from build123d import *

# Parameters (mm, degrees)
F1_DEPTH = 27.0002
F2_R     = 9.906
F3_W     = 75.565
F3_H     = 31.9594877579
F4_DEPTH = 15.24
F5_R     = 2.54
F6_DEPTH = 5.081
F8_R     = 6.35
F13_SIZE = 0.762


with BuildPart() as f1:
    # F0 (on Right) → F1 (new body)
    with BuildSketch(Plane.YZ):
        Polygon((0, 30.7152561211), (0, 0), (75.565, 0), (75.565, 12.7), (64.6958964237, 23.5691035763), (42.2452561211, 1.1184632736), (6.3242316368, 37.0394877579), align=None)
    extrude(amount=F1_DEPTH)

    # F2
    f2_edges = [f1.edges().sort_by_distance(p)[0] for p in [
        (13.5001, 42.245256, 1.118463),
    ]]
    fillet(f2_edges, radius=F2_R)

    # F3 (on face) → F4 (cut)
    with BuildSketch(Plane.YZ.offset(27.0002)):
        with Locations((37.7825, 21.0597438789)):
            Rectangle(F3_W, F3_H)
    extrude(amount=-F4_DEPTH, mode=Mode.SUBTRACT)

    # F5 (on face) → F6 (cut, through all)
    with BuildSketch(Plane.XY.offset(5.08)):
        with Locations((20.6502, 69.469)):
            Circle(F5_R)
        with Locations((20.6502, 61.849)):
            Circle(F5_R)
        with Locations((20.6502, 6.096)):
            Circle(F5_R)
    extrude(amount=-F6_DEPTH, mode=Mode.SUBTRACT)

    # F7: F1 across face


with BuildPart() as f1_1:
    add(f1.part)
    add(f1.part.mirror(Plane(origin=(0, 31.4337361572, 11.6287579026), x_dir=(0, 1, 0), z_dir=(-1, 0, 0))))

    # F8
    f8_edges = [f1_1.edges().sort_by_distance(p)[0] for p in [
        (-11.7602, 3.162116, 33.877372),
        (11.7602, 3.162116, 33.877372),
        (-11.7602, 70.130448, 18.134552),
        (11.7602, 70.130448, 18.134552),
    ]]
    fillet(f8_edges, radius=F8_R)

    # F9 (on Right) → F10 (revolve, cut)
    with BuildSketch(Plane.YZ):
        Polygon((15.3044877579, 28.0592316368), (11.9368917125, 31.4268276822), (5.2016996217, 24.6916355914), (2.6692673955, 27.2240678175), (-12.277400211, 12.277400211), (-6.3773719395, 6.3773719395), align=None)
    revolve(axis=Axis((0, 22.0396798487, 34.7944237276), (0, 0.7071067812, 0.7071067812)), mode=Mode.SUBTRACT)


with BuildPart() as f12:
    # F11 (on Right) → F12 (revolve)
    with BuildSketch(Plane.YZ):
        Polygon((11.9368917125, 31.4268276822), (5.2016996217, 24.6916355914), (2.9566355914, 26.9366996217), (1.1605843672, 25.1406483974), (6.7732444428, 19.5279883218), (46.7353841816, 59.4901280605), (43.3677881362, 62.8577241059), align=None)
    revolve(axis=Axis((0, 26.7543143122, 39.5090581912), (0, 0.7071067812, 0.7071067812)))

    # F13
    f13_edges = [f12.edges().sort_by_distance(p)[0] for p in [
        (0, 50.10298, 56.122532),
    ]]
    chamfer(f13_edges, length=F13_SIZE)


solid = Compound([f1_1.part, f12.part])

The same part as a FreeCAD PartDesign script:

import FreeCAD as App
import Part
import Sketcher
from FreeCAD import Vector
Q = App.Units.Quantity


def edges_at(feature, points):
    """Names of the edges that pass closest to the given points."""
    edges = feature.Shape.Edges
    near = lambda p: min(range(len(edges)), key=lambda i: edges[i].distToShape(Part.Vertex(*p))[0])
    return sorted({f"Edge{near(p) + 1}" for p in points})

doc = App.newDocument("Part")
body = doc.addObject("PartDesign::Body", "Body")

sketch1 = doc.addObject("Sketcher::SketchObject", "Sketch")
body.addObject(sketch1)
sketch1.AttachmentSupport = (doc.YZ_Plane, [""])
sketch1.MapMode = "FlatFace"
sketch1.addGeometry([
    Part.LineSegment(Vector(0, 31, 0), Vector(0, 0, 0)),
    Part.LineSegment(Vector(0, 0, 0), Vector(76, 0, 0)),
    Part.LineSegment(Vector(76, 0, 0), Vector(76, 13, 0)),
    Part.LineSegment(Vector(76, 13, 0), Vector(65, 24, 0)),
    Part.LineSegment(Vector(65, 24, 0), Vector(42, 1, 0)),
    Part.LineSegment(Vector(42, 1, 0), Vector(6, 37, 0)),
    Part.LineSegment(Vector(6, 37, 0), Vector(0, 31, 0)),
], False)
sketch1.addConstraint([
    Sketcher.Constraint("Coincident", 0, 2, 1, 1),
    Sketcher.Constraint("Coincident", 1, 2, 2, 1),
    Sketcher.Constraint("Coincident", 2, 2, 3, 1),
    Sketcher.Constraint("Coincident", 3, 2, 4, 1),
    Sketcher.Constraint("Coincident", 4, 2, 5, 1),
    Sketcher.Constraint("Coincident", 5, 2, 6, 1),
    Sketcher.Constraint("Coincident", 6, 2, 0, 1),
    Sketcher.Constraint("Vertical", 0),
    Sketcher.Constraint("Horizontal", 1),
    Sketcher.Constraint("Vertical", 2),
    Sketcher.Constraint("Coincident", 0, 2, -1, 1),
    Sketcher.Constraint("Perpendicular", 3, 4),
    Sketcher.Constraint("Perpendicular", 4, 5),
    Sketcher.Constraint("Perpendicular", 5, 6),
    Sketcher.Constraint("Distance", 5, Q("2 in")),
    Sketcher.Constraint("DistanceY", 2, 1, 2, 2, Q("0.5 in")),
    Sketcher.Constraint("Angle", 3, Q("135 deg")),
    Sketcher.Constraint("Distance", 4, Q("1.25 in")),
    Sketcher.Constraint("DistanceX", 1, 1, 1, 2, Q("2.975 in")),
    Sketcher.Constraint("DistanceY", 0, 2, 0, 1, 30.715256),
])
pad1 = doc.addObject("PartDesign::Pad", "Pad")
body.addObject(pad1)
pad1.Profile = sketch1
pad1.Length = Q("1.063 in")
doc.recompute()

fillet = doc.addObject("PartDesign::Fillet", "Fillet")
body.addObject(fillet)
fillet.Base = (pad1, edges_at(pad1, [(13.5, 42.245, 1.118)]))
fillet.Radius = Q("0.39 in")

sketch2 = doc.addObject("Sketcher::SketchObject", "Sketch001")
body.addObject(sketch2)
sketch2.AttachmentSupport = (doc.YZ_Plane, [""])
sketch2.MapMode = "FlatFace"
sketch2.AttachmentOffset = App.Placement(Vector(0, 0, 1.063 * 25.4), App.Rotation())
sketch2.addGeometry([
    Part.LineSegment(Vector(0, 37, 0), Vector(0, 5, 0)),
    Part.LineSegment(Vector(0, 5, 0), Vector(76, 5, 0)),
    Part.LineSegment(Vector(76, 5, 0), Vector(76, 37, 0)),
    Part.LineSegment(Vector(76, 37, 0), Vector(0, 37, 0)),
], False)
sketch2.addConstraint([
    Sketcher.Constraint("Coincident", 0, 2, 1, 1),
    Sketcher.Constraint("Coincident", 1, 2, 2, 1),
    Sketcher.Constraint("Coincident", 2, 2, 3, 1),
    Sketcher.Constraint("Coincident", 3, 2, 0, 1),
    Sketcher.Constraint("Vertical", 0),
    Sketcher.Constraint("Horizontal", 1),
    Sketcher.Constraint("Vertical", 2),
    Sketcher.Constraint("Horizontal", 3),
    Sketcher.Constraint("PointOnObject", 0, 2, -2),
    Sketcher.Constraint("DistanceY", -1, 1, 0, 2, Q("0.2 in")),
    Sketcher.Constraint("DistanceX", 1, 1, 1, 2, Q("2.975 in")),
    Sketcher.Constraint("DistanceY", 0, 2, 0, 1, 31.959488),
])
pocket1 = doc.addObject("PartDesign::Pocket", "Pocket")
body.addObject(pocket1)
pocket1.Profile = sketch2
pocket1.Length = Q("0.6 in")

sketch3 = doc.addObject("Sketcher::SketchObject", "Sketch002")
body.addObject(sketch3)
sketch3.AttachmentSupport = (doc.XY_Plane, [""])
sketch3.MapMode = "FlatFace"
sketch3.AttachmentOffset = App.Placement(Vector(0, 0, 0.2 * 25.4), App.Rotation())
sketch3.addGeometry([
    Part.Circle(Vector(20.7, 69.5, 0), Vector(0, 0, 1), 2.5),
    Part.Circle(Vector(20.7, 61.8, 0), Vector(0, 0, 1), 2.5),
    Part.Circle(Vector(20.7, 6.1, 0), Vector(0, 0, 1), 2.5),
], False)
sketch3.addConstraint([
    Sketcher.Constraint("Equal", 0, 1),
    Sketcher.Constraint("Equal", 1, 2),
    Sketcher.Constraint("Vertical", 0, 3, 1, 3),
    Sketcher.Constraint("Vertical", 1, 3, 2, 3),
    Sketcher.Constraint("Diameter", 0, Q("0.2 in")),
    Sketcher.Constraint("DistanceY", 1, 3, 0, 3, Q("0.3 in")),
    Sketcher.Constraint("DistanceY", -1, 1, 2, 3, Q("0.24 in")),
    Sketcher.Constraint("DistanceX", -1, 1, 0, 3, Q("0.813 in")),
    Sketcher.Constraint("DistanceY", -1, 1, 0, 3, Q("2.735 in")),
])
pocket2 = doc.addObject("PartDesign::Pocket", "Pocket001")
body.addObject(pocket2)
pocket2.Profile = sketch3
pocket2.Type = "ThroughAll"
body2 = doc.addObject("PartDesign::Body", "Body001")
doc.recompute()

body2.BaseFeature = body
doc.recompute()

mirroring = doc.addObject("Part::Mirroring", "Mirroring")
mirroring.Source = body
mirroring.Base = Vector(0, 31.433736, 11.628758)
mirroring.Normal = Vector(-1, 0, 0)
body3 = doc.addObject("PartDesign::Body", "Body002")
body3.BaseFeature = mirroring
boolean = doc.addObject("PartDesign::Boolean", "Boolean")
body2.addObject(boolean)
boolean.Type = "Fuse"
boolean.addObjects([body3])
doc.recompute()

fillet2 = doc.addObject("PartDesign::Fillet", "Fillet001")
body2.addObject(fillet2)
fillet2.Base = (boolean, edges_at(boolean, [
    (-11.76, 3.162, 33.877),
    (11.76, 3.162, 33.877),
    (-11.76, 70.13, 18.135),
    (11.76, 70.13, 18.135),
]))
fillet2.Radius = Q("0.25 in")

sketch4 = doc.addObject("Sketcher::SketchObject", "Sketch003")
body2.addObject(sketch4)
sketch4.AttachmentSupport = (doc.getObject("YZ_Plane001"), [""])
sketch4.MapMode = "FlatFace"
sketch4.addGeometry([
    Part.LineSegment(Vector(15.3, 28.1, 0), Vector(11.9, 31.4, 0)),
    Part.LineSegment(Vector(11.9, 31.4, 0), Vector(5.2, 24.7, 0)),
    Part.LineSegment(Vector(5.2, 24.7, 0), Vector(2.7, 27.2, 0)),
    Part.LineSegment(Vector(2.7, 27.2, 0), Vector(-12.3, 12.3, 0)),
    Part.LineSegment(Vector(-12.3, 12.3, 0), Vector(-6.4, 6.4, 0)),
    Part.LineSegment(Vector(-6.4, 6.4, 0), Vector(15.3, 28.1, 0)),
], False)
sketch4.addGeometry(Part.LineSegment(Vector(-6.4, 6.4, 0), Vector(15.3, 28.1, 0)), True)
sketch4.addConstraint([
    Sketcher.Constraint("Coincident", 0, 2, 1, 1),
    Sketcher.Constraint("Coincident", 1, 2, 2, 1),
    Sketcher.Constraint("Coincident", 2, 2, 3, 1),
    Sketcher.Constraint("Coincident", 3, 2, 4, 1),
    Sketcher.Constraint("Coincident", 4, 2, 5, 1),
    Sketcher.Constraint("Coincident", 5, 2, 0, 1),
    Sketcher.Constraint("Coincident", 6, 1, 4, 2),
    Sketcher.Constraint("Coincident", 6, 2, 5, 2),
    Sketcher.Constraint("Perpendicular", 0, 1),
    Sketcher.Constraint("Perpendicular", 1, 2),
    Sketcher.Constraint("Perpendicular", 2, 3),
    Sketcher.Constraint("Perpendicular", 3, 4),
    Sketcher.Constraint("Perpendicular", 4, 5),
    Sketcher.Constraint("Angle", 0, Q("135 deg")),
    Sketcher.Constraint("Distance", 0, Q("0.1875 in")),
    Sketcher.Constraint("Distance", 1, Q("0.375 in")),
    Sketcher.Constraint("Distance", 2, Q("0.141 in")),
    Sketcher.Constraint("DistanceX", -1, 1, 1, 2, 5.2017),
    Sketcher.Constraint("DistanceX", 3, 2, -1, 1, 12.2774),
    Sketcher.Constraint("DistanceY", -1, 1, 3, 2, 12.2774),
])
groove = doc.addObject("PartDesign::Groove", "Groove")
body2.addObject(groove)
groove.Profile = sketch4
groove.ReferenceAxis = (sketch4, ["Axis0"])
groove.Angle = 360
body4 = doc.addObject("PartDesign::Body", "Body003")

sketch5 = doc.addObject("Sketcher::SketchObject", "Sketch004")
body4.addObject(sketch5)
sketch5.AttachmentSupport = (doc.getObject("YZ_Plane003"), [""])
sketch5.MapMode = "FlatFace"
sketch5.addGeometry([
    Part.LineSegment(Vector(5.2, 24.7, 0), Vector(3, 26.9, 0)),
    Part.LineSegment(Vector(3, 26.9, 0), Vector(1.2, 25.1, 0)),
    Part.LineSegment(Vector(1.2, 25.1, 0), Vector(6.8, 19.5, 0)),
    Part.LineSegment(Vector(6.8, 19.5, 0), Vector(46.7, 59.5, 0)),
    Part.LineSegment(Vector(46.7, 59.5, 0), Vector(43.4, 62.9, 0)),
    Part.LineSegment(Vector(43.4, 62.9, 0), Vector(5.2, 24.7, 0)),
], False)
sketch5.addGeometry(Part.LineSegment(Vector(6.8, 19.5, 0), Vector(46.7, 59.5, 0)), True)
sketch5.addConstraint([
    Sketcher.Constraint("Coincident", 0, 2, 1, 1),
    Sketcher.Constraint("Coincident", 1, 2, 2, 1),
    Sketcher.Constraint("Coincident", 2, 2, 3, 1),
    Sketcher.Constraint("Coincident", 3, 2, 4, 1),
    Sketcher.Constraint("Coincident", 4, 2, 5, 1),
    Sketcher.Constraint("Coincident", 5, 2, 0, 1),
    Sketcher.Constraint("Coincident", 6, 1, 2, 2),
    Sketcher.Constraint("Coincident", 6, 2, 3, 2),
    Sketcher.Constraint("Perpendicular", 0, 1),
    Sketcher.Constraint("Perpendicular", 1, 2),
    Sketcher.Constraint("Perpendicular", 2, 3),
    Sketcher.Constraint("Perpendicular", 3, 4),
    Sketcher.Constraint("Perpendicular", 4, 5),
    Sketcher.Constraint("Angle", 0, Q("135 deg")),
    Sketcher.Constraint("Distance", 1, Q("0.1 in")),
    Sketcher.Constraint("Distance", 0, Q("0.125 in")),
    Sketcher.Constraint("Distance", 2, Q("0.3125 in")),
    Sketcher.Constraint("Distance", 3, Q("2.225 in")),
    Sketcher.Constraint("DistanceY", -1, 1, 0, 2, Q("1.0605 in")),
    Sketcher.Constraint("DistanceX", -1, 1, 5, 2, 5.2017),
])
revolution = doc.addObject("PartDesign::Revolution", "Revolution")
body4.addObject(revolution)
revolution.Profile = sketch5
revolution.ReferenceAxis = (sketch5, ["Axis0"])
revolution.Angle = 360
doc.recompute()

chamfer = doc.addObject("PartDesign::Chamfer", "Chamfer")
body4.addObject(chamfer)
chamfer.Base = (revolution, edges_at(revolution, [(0, 50.103, 56.123)]))
chamfer.Size = Q("0.03 in")
mirroring.Visibility = False

doc.recompute()
